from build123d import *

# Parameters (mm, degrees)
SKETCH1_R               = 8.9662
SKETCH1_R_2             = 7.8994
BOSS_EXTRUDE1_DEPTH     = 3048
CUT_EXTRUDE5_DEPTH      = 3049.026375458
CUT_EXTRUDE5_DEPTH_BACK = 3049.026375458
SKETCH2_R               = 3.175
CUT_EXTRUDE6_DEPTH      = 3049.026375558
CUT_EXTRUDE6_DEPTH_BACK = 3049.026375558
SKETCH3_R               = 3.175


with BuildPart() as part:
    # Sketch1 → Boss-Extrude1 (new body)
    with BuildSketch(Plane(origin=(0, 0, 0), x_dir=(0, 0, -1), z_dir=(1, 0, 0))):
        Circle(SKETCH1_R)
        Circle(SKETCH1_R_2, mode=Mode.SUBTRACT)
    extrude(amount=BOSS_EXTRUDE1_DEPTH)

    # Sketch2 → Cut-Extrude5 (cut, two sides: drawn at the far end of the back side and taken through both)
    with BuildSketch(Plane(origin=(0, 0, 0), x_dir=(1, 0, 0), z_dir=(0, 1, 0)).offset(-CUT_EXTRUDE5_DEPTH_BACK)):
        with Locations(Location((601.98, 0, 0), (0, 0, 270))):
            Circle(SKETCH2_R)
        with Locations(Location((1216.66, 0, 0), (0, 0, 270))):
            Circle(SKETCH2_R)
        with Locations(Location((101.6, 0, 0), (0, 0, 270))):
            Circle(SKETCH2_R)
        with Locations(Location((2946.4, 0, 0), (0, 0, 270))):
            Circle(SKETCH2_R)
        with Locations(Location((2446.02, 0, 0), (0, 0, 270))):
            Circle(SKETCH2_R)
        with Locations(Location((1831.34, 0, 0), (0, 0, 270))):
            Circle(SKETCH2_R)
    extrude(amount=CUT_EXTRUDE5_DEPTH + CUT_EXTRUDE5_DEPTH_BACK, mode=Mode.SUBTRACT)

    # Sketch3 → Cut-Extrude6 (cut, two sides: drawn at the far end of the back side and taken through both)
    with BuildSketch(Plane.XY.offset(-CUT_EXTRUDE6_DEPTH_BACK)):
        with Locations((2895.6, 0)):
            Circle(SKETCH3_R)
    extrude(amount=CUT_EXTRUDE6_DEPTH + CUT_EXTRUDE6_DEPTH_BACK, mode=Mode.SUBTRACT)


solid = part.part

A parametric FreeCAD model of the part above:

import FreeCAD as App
import Part
import Sketcher
Q = App.Units.Quantity

doc = App.newDocument("Part")
body = doc.addObject("PartDesign::Body", "Body")

sketch1 = body.newObject("Sketcher::SketchObject", "Sketch")
sketch1.AttachmentSupport = (doc.getObject("YZ_Plane"), [""])
sketch1.MapMode = "FlatFace"
sketch1.addGeometry(Part.Circle(App.Vector(0, 0, 0), App.Vector(0, 0, 1), 8.9662), False)
sketch1.addGeometry(Part.Circle(App.Vector(0, 0, 0), App.Vector(0, 0, 1), 7.8994), False)
sketch1.addConstraint(Sketcher.Constraint("Coincident", 0, 3, -1, 1))
sketch1.addConstraint(Sketcher.Constraint("Coincident", 1, 3, -1, 1))
sketch1.addConstraint(Sketcher.Constraint("Diameter", 0, Q("0.706 in")))
sketch1.addConstraint(Sketcher.Constraint("Diameter", 1, Q("0.622 in")))
pad1 = body.newObject("PartDesign::Pad", "Pad")
pad1.Profile = sketch1
pad1.Length = Q("120 in")

sketch2 = body.newObject("Sketcher::SketchObject", "Sketch001")
sketch2.AttachmentSupport = (doc.getObject("XZ_Plane"), [""])
sketch2.MapMode = "FlatFace"
sketch2.addGeometry(Part.Circle(App.Vector(601.98, 0, 0), App.Vector(0, 0, 1), 3.175), False)
sketch2.addGeometry(Part.Circle(App.Vector(1216.66, 0, 0), App.Vector(0, 0, 1), 3.175), False)
sketch2.addGeometry(Part.Circle(App.Vector(101.6, 0, 0), App.Vector(0, 0, 1), 3.175), False)
sketch2.addGeometry(Part.Circle(App.Vector(2946.4, 0, 0), App.Vector(0, 0, 1), 3.175), False)
sketch2.addGeometry(Part.Circle(App.Vector(2446.02, 0, 0), App.Vector(0, 0, 1), 3.175), False)
sketch2.addGeometry(Part.Circle(App.Vector(1831.34, 0, 0), App.Vector(0, 0, 1), 3.175), False)
sketch2.addConstraint(Sketcher.Constraint("Equal", 0, 1))
sketch2.addConstraint(Sketcher.Constraint("Equal", 1, 2))
sketch2.addConstraint(Sketcher.Constraint("Equal", 2, 3))
sketch2.addConstraint(Sketcher.Constraint("Equal", 3, 4))
sketch2.addConstraint(Sketcher.Constraint("Equal", 4, 5))
sketch2.addConstraint(Sketcher.Constraint("PointOnObject", 0, 3, -1))
sketch2.addConstraint(Sketcher.Constraint("PointOnObject", 1, 3, -1))
sketch2.addConstraint(Sketcher.Constraint("PointOnObject", 2, 3, -1))
sketch2.addConstraint(Sketcher.Constraint("PointOnObject", 3, 3, -1))
sketch2.addConstraint(Sketcher.Constraint("PointOnObject", 4, 3, -1))
sketch2.addConstraint(Sketcher.Constraint("PointOnObject", 5, 3, -1))
sketch2.addConstraint(Sketcher.Constraint("Diameter", 0, Q("0.25 in")))
sketch2.addConstraint(Sketcher.Constraint("DistanceX", -1, 1, 2, 3, Q("4 in")))
sketch2.addConstraint(Sketcher.Constraint("DistanceX", -1, 1, 3, 3, Q("116 in")))
sketch2.addConstraint(Sketcher.Constraint("DistanceX", -1, 1, 0, 3, Q("23.7 in")))
sketch2.addConstraint(Sketcher.Constraint("DistanceX", -1, 1, 1, 3, Q("47.9 in")))
sketch2.addConstraint(Sketcher.Constraint("DistanceX", -1, 1, 4, 3, Q("96.3 in")))
sketch2.addConstraint(Sketcher.Constraint("DistanceX", -1, 1, 5, 3, Q("72.1 in")))
pocket1 = body.newObject("PartDesign::Pocket", "Pocket")
pocket1.Profile = sketch2
pocket1.Type = "ThroughAll"
pocket1.Midplane = True

sketch3 = body.newObject("Sketcher::SketchObject", "Sketch002")
sketch3.AttachmentSupport = (doc.getObject("XY_Plane"), [""])
sketch3.MapMode = "FlatFace"
sketch3.addGeometry(Part.Circle(App.Vector(2895.6, 0, 0), App.Vector(0, 0, 1), 3.175), False)
sketch3.addConstraint(Sketcher.Constraint("PointOnObject", 0, 3, -1))
sketch3.addConstraint(Sketcher.Constraint("Diameter", 0, Q("0.25 in")))
sketch3.addConstraint(Sketcher.Constraint("DistanceX", -1, 1, 0, 3, Q("114 in")))
pocket2 = body.newObject("PartDesign::Pocket", "Pocket001")
pocket2.Profile = sketch3
pocket2.Type = "ThroughAll"
pocket2.Midplane = True

doc.recompute()
